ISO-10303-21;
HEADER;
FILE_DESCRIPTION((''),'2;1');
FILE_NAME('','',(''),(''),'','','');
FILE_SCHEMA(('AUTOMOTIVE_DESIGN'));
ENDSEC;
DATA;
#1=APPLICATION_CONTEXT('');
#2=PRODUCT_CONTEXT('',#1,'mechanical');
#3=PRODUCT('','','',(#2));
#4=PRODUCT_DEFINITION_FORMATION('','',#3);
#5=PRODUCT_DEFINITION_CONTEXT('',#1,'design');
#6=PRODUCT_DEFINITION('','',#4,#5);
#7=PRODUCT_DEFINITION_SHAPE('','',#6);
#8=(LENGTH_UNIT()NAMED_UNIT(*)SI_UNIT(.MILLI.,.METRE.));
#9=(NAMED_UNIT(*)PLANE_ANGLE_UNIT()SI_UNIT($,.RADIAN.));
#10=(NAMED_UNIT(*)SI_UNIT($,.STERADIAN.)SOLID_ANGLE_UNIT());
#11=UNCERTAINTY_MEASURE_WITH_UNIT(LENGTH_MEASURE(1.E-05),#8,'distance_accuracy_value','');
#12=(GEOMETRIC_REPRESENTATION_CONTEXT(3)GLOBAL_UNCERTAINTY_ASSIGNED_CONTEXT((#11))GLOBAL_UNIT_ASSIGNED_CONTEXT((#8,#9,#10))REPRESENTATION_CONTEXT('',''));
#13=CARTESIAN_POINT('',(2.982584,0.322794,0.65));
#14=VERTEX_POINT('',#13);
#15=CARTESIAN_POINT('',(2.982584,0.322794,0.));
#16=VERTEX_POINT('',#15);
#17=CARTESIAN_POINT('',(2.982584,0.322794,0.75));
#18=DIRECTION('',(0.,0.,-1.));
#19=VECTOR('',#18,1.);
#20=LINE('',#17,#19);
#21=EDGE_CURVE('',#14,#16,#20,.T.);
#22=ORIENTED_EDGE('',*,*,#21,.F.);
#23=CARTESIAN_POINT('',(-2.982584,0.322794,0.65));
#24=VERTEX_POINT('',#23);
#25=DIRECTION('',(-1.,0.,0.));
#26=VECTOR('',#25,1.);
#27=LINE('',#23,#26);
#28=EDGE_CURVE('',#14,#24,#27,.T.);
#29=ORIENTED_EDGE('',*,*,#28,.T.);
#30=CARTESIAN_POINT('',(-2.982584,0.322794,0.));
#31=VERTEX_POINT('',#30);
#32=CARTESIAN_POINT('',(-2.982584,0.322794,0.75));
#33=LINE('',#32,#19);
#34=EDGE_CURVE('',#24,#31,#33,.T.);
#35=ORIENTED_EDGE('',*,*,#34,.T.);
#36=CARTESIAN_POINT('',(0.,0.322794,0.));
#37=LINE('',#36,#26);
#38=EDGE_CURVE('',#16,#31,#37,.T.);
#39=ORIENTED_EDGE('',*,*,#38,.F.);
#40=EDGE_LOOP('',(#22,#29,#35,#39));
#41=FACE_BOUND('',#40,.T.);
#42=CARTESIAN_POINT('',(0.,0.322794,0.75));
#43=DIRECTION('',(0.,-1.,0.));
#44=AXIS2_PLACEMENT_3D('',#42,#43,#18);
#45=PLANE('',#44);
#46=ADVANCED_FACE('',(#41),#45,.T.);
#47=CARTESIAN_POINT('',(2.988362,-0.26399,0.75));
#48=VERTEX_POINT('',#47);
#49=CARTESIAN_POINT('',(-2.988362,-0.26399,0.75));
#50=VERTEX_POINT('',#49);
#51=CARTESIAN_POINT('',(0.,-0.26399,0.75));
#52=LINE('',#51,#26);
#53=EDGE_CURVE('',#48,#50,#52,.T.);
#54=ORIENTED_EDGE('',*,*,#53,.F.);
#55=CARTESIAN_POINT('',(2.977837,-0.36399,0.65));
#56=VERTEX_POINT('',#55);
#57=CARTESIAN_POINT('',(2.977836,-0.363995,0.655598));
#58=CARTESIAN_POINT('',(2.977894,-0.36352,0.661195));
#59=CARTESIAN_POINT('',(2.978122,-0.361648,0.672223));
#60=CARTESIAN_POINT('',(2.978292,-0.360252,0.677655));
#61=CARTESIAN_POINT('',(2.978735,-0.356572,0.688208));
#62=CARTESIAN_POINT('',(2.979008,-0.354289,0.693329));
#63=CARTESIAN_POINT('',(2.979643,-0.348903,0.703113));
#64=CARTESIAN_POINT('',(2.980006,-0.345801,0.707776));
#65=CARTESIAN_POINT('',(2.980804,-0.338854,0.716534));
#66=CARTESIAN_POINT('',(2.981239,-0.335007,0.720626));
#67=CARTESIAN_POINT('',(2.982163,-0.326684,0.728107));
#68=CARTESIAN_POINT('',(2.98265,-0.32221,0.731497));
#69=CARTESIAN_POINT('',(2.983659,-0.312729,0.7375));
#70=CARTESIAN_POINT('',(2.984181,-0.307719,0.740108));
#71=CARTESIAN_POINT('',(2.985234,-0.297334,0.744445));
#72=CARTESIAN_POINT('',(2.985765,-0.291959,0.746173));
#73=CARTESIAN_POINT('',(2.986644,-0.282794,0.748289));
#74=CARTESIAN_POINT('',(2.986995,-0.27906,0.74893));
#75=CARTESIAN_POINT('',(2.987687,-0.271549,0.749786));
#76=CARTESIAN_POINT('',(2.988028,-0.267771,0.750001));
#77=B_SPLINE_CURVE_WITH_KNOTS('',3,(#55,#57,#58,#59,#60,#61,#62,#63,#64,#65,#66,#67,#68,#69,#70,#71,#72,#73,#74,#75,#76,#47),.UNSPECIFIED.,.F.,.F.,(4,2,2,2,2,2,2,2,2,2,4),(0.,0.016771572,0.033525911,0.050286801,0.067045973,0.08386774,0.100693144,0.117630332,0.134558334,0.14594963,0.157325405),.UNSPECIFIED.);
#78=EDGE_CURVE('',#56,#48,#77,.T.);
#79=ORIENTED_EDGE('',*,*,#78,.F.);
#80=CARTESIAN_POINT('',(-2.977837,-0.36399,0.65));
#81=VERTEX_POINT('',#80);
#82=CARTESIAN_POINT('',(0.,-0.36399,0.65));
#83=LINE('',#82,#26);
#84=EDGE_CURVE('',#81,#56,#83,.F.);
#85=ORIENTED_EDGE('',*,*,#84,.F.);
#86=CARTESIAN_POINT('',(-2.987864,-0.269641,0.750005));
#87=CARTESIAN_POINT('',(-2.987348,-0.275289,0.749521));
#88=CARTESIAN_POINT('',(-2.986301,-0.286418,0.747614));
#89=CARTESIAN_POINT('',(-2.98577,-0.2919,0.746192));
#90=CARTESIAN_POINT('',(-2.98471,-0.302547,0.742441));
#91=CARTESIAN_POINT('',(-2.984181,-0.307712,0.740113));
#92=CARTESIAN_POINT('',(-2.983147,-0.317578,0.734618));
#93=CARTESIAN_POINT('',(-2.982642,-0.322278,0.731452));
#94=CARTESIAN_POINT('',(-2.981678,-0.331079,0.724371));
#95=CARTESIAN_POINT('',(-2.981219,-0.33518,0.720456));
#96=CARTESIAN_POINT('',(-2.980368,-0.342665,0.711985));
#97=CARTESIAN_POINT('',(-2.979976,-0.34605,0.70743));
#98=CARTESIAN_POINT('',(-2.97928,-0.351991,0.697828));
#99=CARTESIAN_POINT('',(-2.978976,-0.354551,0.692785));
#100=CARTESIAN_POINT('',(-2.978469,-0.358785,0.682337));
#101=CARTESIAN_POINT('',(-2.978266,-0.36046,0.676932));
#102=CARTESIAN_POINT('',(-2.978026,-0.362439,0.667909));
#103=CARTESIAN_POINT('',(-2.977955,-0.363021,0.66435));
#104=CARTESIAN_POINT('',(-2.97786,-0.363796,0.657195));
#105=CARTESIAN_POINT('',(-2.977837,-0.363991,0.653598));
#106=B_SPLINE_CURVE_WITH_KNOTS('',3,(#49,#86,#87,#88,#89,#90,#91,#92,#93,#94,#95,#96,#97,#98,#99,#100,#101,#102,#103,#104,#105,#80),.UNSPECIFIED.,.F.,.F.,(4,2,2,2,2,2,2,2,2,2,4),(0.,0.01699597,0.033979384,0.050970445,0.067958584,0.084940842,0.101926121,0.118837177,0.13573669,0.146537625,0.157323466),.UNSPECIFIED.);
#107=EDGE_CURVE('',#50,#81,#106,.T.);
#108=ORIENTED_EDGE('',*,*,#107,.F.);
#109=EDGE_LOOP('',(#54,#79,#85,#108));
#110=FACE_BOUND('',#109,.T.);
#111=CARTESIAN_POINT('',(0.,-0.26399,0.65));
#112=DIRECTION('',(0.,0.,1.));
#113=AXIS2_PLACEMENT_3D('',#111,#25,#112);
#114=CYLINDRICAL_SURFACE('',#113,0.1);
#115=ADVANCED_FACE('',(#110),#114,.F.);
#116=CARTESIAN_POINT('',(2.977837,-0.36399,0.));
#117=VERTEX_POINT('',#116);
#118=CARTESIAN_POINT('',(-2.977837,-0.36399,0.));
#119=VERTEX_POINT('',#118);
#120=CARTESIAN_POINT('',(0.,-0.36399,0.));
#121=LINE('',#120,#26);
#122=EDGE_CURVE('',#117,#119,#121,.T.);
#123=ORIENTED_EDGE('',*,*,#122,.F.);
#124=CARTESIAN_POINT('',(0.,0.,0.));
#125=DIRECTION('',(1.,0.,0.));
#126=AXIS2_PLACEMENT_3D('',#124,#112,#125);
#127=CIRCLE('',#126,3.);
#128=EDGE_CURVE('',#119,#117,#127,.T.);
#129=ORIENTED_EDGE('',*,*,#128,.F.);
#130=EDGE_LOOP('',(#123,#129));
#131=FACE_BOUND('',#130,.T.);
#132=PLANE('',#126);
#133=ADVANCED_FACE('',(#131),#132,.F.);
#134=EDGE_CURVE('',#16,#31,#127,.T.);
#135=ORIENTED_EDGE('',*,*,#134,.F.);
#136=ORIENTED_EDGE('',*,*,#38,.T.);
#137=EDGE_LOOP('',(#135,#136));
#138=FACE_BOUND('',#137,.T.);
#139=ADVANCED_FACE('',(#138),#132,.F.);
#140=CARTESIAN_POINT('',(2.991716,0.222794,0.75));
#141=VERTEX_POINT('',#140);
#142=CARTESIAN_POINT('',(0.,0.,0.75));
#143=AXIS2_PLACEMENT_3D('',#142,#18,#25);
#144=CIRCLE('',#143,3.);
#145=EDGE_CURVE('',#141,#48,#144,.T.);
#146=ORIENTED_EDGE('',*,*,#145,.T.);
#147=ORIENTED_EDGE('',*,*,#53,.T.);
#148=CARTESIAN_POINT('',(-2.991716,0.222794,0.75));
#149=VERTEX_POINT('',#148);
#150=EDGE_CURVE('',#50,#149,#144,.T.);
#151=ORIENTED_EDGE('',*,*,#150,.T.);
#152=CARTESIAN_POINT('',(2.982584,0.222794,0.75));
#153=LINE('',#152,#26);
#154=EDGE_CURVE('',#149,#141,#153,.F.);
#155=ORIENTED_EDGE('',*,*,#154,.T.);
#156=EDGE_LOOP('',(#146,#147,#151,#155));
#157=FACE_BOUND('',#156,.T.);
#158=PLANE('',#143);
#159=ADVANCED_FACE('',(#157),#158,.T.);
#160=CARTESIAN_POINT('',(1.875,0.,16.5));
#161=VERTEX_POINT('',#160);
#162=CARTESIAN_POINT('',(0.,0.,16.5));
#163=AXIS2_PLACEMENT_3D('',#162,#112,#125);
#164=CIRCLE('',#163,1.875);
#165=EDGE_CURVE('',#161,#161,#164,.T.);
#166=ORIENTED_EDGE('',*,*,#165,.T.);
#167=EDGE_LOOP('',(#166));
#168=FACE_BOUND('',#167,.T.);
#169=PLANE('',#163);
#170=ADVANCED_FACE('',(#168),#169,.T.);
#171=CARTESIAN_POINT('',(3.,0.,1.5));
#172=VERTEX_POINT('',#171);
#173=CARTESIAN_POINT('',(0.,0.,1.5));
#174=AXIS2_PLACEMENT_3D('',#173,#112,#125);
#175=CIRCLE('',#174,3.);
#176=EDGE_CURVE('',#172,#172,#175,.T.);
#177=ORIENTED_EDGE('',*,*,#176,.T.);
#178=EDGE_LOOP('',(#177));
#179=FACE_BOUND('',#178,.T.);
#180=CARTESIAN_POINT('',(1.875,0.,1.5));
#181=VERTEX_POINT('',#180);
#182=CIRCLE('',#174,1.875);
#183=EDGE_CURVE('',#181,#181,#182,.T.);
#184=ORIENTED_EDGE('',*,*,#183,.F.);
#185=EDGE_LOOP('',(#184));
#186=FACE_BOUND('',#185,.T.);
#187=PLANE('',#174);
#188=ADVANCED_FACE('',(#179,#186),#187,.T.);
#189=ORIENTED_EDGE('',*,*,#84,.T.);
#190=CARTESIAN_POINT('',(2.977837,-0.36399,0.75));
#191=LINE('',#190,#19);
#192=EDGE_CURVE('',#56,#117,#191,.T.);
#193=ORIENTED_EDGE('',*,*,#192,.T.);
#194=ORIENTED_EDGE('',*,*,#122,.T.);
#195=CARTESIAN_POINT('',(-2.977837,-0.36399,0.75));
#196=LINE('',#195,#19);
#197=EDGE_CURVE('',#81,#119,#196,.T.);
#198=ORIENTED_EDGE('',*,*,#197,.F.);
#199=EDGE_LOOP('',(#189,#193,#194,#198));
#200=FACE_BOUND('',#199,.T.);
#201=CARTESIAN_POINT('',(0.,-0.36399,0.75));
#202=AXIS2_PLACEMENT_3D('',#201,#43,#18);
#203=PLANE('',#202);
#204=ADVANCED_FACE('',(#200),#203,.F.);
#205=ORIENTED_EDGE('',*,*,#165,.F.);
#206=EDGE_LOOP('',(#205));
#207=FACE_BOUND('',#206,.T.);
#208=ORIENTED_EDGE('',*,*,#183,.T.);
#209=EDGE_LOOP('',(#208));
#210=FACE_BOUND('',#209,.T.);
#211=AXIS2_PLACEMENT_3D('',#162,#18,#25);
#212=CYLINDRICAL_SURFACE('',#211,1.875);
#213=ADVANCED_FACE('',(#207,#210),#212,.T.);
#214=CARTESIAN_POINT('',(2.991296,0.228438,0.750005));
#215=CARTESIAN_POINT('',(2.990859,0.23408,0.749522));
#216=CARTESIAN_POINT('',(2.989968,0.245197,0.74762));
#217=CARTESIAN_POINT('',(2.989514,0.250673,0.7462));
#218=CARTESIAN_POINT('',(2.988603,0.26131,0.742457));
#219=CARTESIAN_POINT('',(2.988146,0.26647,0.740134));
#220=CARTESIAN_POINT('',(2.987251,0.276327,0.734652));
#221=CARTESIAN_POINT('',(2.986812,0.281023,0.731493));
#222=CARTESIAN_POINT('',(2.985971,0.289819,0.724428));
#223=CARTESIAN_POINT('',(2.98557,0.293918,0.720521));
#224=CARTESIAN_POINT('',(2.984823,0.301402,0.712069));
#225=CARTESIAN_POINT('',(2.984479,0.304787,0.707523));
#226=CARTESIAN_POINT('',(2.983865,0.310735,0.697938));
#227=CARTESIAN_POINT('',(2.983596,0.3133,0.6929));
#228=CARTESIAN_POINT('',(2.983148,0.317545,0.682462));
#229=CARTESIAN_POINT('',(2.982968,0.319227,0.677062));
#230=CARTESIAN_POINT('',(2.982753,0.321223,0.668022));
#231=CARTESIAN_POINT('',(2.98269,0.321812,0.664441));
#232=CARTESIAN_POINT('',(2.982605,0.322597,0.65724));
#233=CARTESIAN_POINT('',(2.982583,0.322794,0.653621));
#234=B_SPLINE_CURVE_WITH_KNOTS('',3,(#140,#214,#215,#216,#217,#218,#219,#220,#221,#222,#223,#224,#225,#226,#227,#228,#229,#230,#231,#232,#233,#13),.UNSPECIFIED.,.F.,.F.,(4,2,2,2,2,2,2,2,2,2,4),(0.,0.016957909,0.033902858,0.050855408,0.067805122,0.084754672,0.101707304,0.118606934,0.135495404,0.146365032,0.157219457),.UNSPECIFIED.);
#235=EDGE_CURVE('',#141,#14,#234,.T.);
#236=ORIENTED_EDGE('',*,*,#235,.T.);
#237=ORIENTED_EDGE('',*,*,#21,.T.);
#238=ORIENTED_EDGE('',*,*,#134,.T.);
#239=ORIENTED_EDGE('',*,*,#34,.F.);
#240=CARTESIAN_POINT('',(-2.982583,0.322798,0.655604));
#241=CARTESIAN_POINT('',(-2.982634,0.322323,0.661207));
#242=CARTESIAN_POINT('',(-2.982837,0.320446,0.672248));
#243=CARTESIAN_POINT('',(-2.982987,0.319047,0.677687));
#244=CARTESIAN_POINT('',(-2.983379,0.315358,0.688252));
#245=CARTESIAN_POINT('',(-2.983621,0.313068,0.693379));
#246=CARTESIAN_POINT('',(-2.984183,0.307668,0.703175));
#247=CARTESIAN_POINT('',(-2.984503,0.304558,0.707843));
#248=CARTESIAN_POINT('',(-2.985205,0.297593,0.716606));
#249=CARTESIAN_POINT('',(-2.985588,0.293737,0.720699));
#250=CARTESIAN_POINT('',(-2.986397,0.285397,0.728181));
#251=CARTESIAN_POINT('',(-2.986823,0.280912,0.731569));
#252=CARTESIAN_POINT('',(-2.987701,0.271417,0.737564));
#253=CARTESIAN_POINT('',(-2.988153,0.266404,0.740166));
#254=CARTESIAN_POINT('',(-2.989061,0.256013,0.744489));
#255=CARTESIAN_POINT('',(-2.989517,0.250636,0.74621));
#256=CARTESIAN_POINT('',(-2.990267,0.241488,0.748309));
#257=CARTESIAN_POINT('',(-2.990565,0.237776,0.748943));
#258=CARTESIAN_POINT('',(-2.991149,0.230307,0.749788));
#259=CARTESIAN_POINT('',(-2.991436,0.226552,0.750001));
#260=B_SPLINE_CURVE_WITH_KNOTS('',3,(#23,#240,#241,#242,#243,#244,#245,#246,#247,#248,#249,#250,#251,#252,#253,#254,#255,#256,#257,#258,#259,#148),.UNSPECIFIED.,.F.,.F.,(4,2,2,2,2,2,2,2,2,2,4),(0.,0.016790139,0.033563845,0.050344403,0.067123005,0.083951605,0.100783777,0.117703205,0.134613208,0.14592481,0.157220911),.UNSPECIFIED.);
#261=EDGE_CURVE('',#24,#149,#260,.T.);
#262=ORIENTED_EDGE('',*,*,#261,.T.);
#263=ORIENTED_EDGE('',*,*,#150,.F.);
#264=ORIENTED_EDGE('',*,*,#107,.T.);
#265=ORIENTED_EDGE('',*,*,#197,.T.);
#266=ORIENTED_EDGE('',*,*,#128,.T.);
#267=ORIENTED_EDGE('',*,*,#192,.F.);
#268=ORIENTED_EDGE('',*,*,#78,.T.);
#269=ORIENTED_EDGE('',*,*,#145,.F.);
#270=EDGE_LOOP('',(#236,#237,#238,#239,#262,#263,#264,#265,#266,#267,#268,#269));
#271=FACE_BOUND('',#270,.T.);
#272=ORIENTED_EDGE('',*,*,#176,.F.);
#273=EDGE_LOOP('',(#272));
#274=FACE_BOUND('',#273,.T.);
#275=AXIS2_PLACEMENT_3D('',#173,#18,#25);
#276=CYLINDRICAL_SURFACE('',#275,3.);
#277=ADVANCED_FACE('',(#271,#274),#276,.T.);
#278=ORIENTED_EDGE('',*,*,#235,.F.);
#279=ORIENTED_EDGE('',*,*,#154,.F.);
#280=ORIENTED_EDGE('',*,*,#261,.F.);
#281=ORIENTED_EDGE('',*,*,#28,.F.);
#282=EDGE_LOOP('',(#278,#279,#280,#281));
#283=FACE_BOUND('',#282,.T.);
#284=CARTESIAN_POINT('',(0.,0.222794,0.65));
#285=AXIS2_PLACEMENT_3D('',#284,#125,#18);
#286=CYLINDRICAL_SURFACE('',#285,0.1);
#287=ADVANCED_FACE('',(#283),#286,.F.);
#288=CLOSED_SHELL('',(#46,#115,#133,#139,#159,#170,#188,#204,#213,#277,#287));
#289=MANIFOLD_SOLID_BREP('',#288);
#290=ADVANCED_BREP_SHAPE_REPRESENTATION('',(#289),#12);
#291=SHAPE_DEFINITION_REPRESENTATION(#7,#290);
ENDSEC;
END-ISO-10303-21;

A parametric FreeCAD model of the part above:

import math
import FreeCAD as App
import Part
import Sketcher

V = App.Vector


def edges_at(feature, points):
    """Names of the edges that pass closest to the given points."""
    edges = feature.Shape.Edges
    near = lambda p: min(range(len(edges)), key=lambda i: edges[i].distToShape(Part.Vertex(*p))[0])
    return sorted({f"Edge{near(p) + 1}" for p in points})

doc = App.newDocument("Part")
body = doc.addObject("PartDesign::Body", "Body")

sketch1 = doc.addObject("Sketcher::SketchObject", "Sketch")
body.addObject(sketch1)
sketch1.AttachmentSupport = (doc.XY_Plane, [""])
sketch1.MapMode = "FlatFace"
sketch1.addGeometry(Part.Circle(V(0, 0, 0), V(0, 0, 1), 3), False)
sketch1.addConstraint([
    Sketcher.Constraint("Coincident", 0, 3, -1, 1),
    Sketcher.Constraint("Diameter", 0, 6.0),
])
pad1 = doc.addObject("PartDesign::Pad", "Pad")
body.addObject(pad1)
pad1.Profile = sketch1
pad1.Length = 1.5

sketch2 = doc.addObject("Sketcher::SketchObject", "Sketch001")
body.addObject(sketch2)
sketch2.AttachmentSupport = (doc.XY_Plane, [""])
sketch2.MapMode = "FlatFace"
sketch2.AttachmentOffset = App.Placement(V(0, 0, 1.5), App.Rotation())
sketch2.addGeometry(Part.Circle(V(0, 0, 0), V(0, 0, 1), 1.9), False)
sketch2.addConstraint([
    Sketcher.Constraint("Coincident", 0, 3, -1, 1),
    Sketcher.Constraint("Diameter", 0, 3.75),
])
pad2 = doc.addObject("PartDesign::Pad", "Pad001")
body.addObject(pad2)
pad2.Profile = sketch2
pad2.Length = 15

sketch3 = doc.addObject("Sketcher::SketchObject", "Sketch002")
body.addObject(sketch3)
sketch3.AttachmentSupport = (doc.XY_Plane, [""])
sketch3.MapMode = "FlatFace"
sketch3.addGeometry([
    Part.ArcOfCircle(Part.Circle(V(0, 0, 0), V(0, 0, 1), 3), math.radians(-6.18), math.radians(6.18)),
    Part.ArcOfCircle(Part.Circle(V(0, 0, 0), V(0, 0, 1), 3), math.radians(-6.97), math.radians(-6.18)),
    Part.LineSegment(V(2.978, -0.364, 0), V(-2.978, -0.364, 0)),
    Part.ArcOfCircle(Part.Circle(V(0, 0, 0), V(0, 0, 1), 3), math.radians(180), math.radians(186.97)),
    Part.ArcOfCircle(Part.Circle(V(0, 0, 0), V(0, 0, 1), 3), math.radians(173.82), math.radians(180)),
    Part.LineSegment(V(-2.983, 0.323, 0), V(2.983, 0.323, 0)),
], False)
sketch3.addConstraint([
    Sketcher.Constraint("Tangent", 0, 1, 1, 2),
    Sketcher.Constraint("Coincident", 1, 1, 2, 1),
    Sketcher.Constraint("Coincident", 2, 2, 3, 2),
    Sketcher.Constraint("Tangent", 3, 1, 4, 2),
    Sketcher.Constraint("Coincident", 4, 1, 5, 1),
    Sketcher.Constraint("Coincident", 5, 2, 0, 2),
    Sketcher.Constraint("Horizontal", 2),
    Sketcher.Constraint("Horizontal", 5),
    Sketcher.Constraint("Coincident", 0, 3, -1, 1),
    Sketcher.Constraint("Coincident", 3, 3, -1, 1),
    Sketcher.Constraint("Equal", 0, 3),
    Sketcher.Constraint("Equal", 3, 4),
    Sketcher.Constraint("PointOnObject", 1, 3, -1),
    Sketcher.Constraint("PointOnObject", 3, 1, -1),
    Sketcher.Constraint("Vertical", 0, 1, 5, 2),
    Sketcher.Constraint("Radius", 0, 3.0),
    Sketcher.Constraint("DistanceX", 2, 2, 2, 1, 5.955673),
    Sketcher.Constraint("DistanceX", 5, 1, 5, 2, 5.965167),
])
pocket1 = doc.addObject("PartDesign::Pocket", "Pocket")
body.addObject(pocket1)
pocket1.Profile = sketch3
pocket1.Length = 0.75
pocket1.Reversed = True
doc.recompute()

fillet = doc.addObject("PartDesign::Fillet", "Fillet")
body.addObject(fillet)
fillet.Base = (pocket1, edges_at(pocket1, [(0, -0.364, 0.75), (0, 0.323, 0.75)]))
fillet.Radius = 0.1

doc.recompute()
